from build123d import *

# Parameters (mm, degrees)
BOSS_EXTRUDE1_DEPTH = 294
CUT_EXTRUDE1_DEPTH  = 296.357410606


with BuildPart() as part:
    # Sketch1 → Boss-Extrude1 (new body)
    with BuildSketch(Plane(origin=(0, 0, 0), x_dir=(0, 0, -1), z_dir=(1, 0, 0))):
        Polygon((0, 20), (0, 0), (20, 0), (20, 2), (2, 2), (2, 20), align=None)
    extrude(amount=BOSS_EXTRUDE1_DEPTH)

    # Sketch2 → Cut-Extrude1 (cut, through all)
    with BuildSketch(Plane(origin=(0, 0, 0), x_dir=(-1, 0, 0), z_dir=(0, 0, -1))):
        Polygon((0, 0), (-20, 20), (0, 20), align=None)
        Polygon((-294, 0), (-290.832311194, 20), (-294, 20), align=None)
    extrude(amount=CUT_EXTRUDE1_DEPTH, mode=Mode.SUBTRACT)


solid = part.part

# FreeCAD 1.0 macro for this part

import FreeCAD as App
import Part
import Sketcher
from FreeCAD import Vector
Q = App.Units.Quantity


def add_polygon(sketch, points):
    """Adds a closed chain of lines whose ends are joined by coincident constraints."""
    first, n = sketch.GeometryCount, len(points)
    for a, b in zip(points, points[1:] + points[:1]):
        sketch.addGeometry(Part.LineSegment(App.Vector(*a, 0), App.Vector(*b, 0)), False)
    for i in range(n):
        sketch.addConstraint(Sketcher.Constraint("Coincident", first + i, 2, first + (i + 1) % n, 1))

doc = App.newDocument("Part")
params = doc.addObject("Spreadsheet::Sheet", "Params")
for row, (alias, value) in enumerate([
    ("sketch1_width", "20 mm"),
    ("sketch1_width2", "2 mm"),
    ("pad1_length", "294 mm"),
    ("sketch2_width", "20 mm"),
], start=1):
    params.set(f"A{row}", alias)
    params.set(f"B{row}", "=" + value)
    params.setAlias(f"B{row}", alias)

body = doc.addObject("PartDesign::Body", "Body")

# Sketch on YZ plane
sketch1 = body.newObject("Sketcher::SketchObject", "Sketch")
sketch1.AttachmentSupport = (doc.getObject("YZ_Plane"), [""])
sketch1.MapMode = "FlatFace"
add_polygon(sketch1, [(20, 0), (0, 0), (0, -20), (2, -20), (2, -2), (20, -2)])  # lines 0-5
sketch1.addConstraint([
    Sketcher.Constraint("Horizontal", 0),
    Sketcher.Constraint("Vertical", 1),
    Sketcher.Constraint("Horizontal", 2),
    Sketcher.Constraint("Vertical", 3),
    Sketcher.Constraint("Horizontal", 4),
    Sketcher.Constraint("Vertical", 5),
    Sketcher.Constraint("Coincident", 0, 2, -1, 1),
    Sketcher.Constraint("Equal", 0, 1),
    Sketcher.Constraint("Equal", 4, 3),
    Sketcher.Constraint("DistanceX", 0, 2, 0, 1, Q("20 mm")),
    Sketcher.Constraint("DistanceX", 2, 1, 2, 2, Q("2 mm")),
])
sketch1.setExpression("Constraints[15]", "Params.sketch1_width")
sketch1.setExpression("Constraints[16]", "Params.sketch1_width2")
pad1 = body.newObject("PartDesign::Pad", "Pad")
pad1.Profile = sketch1
pad1.setExpression("Length", "Params.pad1_length")

# Sketch on XY plane
sketch2 = body.newObject("Sketcher::SketchObject", "Sketch001")
sketch2.AttachmentSupport = (doc.getObject("XY_Plane"), [""])
sketch2.MapMode = "FlatFace"
add_polygon(sketch2, [(20, 20), (0, 0), (0, 20)])  # lines 0-2
add_polygon(sketch2, [(294, 0), (290.832311, 20), (294, 20)])  # lines 3-5
sketch2.addConstraint([
    Sketcher.Constraint("Vertical", 1),
    Sketcher.Constraint("Horizontal", 2),
    Sketcher.Constraint("Horizontal", 4),
    Sketcher.Constraint("Vertical", 5),
    Sketcher.Constraint("Coincident", 0, 2, -1, 1),
    Sketcher.Constraint("PointOnObject", 5, 2, -1),
    Sketcher.Constraint("Horizontal", 2, 2, 3, 2),
    Sketcher.Constraint("Equal", 2, 1),
    Sketcher.Constraint("DistanceX", 2, 1, 2, 2, Q("20 mm")),
    Sketcher.Constraint("Angle", 3, Q("99 deg")),
    Sketcher.Constraint("DistanceX", -1, 1, 4, 2, Q("294 mm")),
])
sketch2.setExpression("Constraints[14]", "Params.sketch2_width")
pocket1 = body.newObject("PartDesign::Pocket", "Pocket")
pocket1.Profile = sketch2
pocket1.Type = "ThroughAll"

doc.recompute()
